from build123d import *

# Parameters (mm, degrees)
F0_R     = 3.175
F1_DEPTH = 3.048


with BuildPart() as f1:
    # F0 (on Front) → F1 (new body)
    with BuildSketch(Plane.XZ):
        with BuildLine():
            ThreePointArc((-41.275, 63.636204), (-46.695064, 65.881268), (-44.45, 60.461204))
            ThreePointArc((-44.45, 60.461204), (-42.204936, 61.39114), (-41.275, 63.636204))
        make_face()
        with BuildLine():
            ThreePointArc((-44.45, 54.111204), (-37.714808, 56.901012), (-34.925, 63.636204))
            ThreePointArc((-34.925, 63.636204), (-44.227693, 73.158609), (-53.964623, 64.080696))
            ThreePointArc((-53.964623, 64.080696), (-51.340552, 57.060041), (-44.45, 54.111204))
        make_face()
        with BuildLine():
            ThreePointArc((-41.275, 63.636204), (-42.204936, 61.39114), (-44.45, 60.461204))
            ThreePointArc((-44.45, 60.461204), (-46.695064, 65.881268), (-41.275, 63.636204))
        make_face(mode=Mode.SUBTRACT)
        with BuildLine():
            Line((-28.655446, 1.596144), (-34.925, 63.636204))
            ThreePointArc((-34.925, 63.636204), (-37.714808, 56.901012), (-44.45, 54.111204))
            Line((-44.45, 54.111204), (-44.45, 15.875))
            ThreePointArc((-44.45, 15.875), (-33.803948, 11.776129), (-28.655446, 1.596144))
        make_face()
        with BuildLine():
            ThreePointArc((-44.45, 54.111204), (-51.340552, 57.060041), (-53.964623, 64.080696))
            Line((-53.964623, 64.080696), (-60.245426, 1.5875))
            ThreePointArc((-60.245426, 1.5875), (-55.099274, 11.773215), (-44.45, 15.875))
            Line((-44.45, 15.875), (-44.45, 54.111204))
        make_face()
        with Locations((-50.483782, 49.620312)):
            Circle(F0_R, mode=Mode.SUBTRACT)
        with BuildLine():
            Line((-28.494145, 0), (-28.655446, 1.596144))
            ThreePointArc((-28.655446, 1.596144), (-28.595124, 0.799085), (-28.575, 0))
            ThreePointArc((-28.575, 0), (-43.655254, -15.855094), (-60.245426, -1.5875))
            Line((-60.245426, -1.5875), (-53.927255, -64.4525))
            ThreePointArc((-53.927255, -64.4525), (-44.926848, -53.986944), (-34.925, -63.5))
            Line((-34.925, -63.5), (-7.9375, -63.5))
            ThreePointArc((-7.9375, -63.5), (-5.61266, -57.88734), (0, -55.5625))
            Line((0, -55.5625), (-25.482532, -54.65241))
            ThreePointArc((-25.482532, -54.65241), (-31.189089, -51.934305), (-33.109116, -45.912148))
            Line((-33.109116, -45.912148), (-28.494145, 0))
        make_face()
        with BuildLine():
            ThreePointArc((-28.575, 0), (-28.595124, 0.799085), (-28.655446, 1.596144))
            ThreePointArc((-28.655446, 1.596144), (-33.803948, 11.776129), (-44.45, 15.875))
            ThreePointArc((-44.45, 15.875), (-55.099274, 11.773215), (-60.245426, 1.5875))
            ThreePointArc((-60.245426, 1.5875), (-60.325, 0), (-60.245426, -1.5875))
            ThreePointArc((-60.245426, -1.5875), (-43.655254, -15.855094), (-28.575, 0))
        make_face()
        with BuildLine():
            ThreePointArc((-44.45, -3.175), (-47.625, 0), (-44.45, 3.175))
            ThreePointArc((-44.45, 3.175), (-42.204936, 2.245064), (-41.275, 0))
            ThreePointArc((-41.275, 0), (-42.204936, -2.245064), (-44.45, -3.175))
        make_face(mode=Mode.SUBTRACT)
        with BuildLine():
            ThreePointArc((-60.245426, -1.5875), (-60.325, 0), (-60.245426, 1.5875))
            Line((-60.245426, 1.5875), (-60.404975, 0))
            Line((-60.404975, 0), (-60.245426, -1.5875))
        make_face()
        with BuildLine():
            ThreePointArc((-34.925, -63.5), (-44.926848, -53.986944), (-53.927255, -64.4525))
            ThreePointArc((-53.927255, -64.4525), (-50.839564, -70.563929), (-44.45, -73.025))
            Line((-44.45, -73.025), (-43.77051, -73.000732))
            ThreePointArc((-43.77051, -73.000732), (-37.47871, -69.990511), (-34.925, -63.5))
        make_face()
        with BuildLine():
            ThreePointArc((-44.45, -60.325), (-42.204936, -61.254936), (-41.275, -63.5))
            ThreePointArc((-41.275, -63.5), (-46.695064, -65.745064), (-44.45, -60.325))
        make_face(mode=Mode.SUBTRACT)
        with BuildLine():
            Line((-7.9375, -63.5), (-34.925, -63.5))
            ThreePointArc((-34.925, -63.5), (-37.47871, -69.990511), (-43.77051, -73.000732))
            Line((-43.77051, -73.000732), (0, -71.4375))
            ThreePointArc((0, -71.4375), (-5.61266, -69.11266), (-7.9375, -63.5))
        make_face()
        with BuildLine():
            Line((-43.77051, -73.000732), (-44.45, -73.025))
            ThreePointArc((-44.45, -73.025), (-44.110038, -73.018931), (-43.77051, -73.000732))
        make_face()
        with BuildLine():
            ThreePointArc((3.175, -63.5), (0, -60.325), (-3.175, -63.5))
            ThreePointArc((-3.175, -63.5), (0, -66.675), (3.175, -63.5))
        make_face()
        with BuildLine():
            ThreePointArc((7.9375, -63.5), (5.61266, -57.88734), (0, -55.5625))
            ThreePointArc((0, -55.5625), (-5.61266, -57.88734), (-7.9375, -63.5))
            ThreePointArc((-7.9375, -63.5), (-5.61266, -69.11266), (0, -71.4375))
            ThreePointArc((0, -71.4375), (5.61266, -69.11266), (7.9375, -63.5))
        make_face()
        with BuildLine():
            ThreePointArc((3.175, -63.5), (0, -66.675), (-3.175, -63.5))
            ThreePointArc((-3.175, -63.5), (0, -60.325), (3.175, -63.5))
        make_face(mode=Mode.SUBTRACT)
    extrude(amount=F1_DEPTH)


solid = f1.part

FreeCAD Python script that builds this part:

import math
import FreeCAD as App
import Part
import Sketcher
Q = App.Units.Quantity

doc = App.newDocument("Part")
body = doc.addObject("PartDesign::Body", "Body")

sketch1 = body.newObject("Sketcher::SketchObject", "Sketch")
sketch1.AttachmentSupport = (doc.getObject("XZ_Plane"), [""])
sketch1.MapMode = "FlatFace"
sketch1.addGeometry([
    Part.LineSegment(App.Vector(-28.7, 1.6, 0), App.Vector(-34.9, 63.6, 0)),
    Part.ArcOfCircle(Part.Circle(App.Vector(-44.4, 63.6, 0), App.Vector(0, 0, 1), 9.5), math.radians(0), math.radians(177)),
    Part.LineSegment(App.Vector(-54, 64.1, 0), App.Vector(-60.2, 1.6, 0)),
    Part.LineSegment(App.Vector(-60.2, 1.6, 0), App.Vector(-60.4, 0, 0)),
    Part.LineSegment(App.Vector(-60.4, 0, 0), App.Vector(-60.2, -1.6, 0)),
    Part.LineSegment(App.Vector(-60.2, -1.6, 0), App.Vector(-53.9, -64.5, 0)),
    Part.ArcOfCircle(Part.Circle(App.Vector(-44.4, -63.5, 0), App.Vector(0, 0, 1), 9.5), math.radians(-174), math.radians(-90)),
    Part.ArcOfCircle(Part.Circle(App.Vector(-44.5, -63.5, 0), App.Vector(0, 0, 1), 9.5), math.radians(-90), math.radians(-85.91)),
    Part.LineSegment(App.Vector(-43.8, -73, 0), App.Vector(0, -71.4, 0)),
    Part.ArcOfCircle(Part.Circle(App.Vector(0, -63.5, 0), App.Vector(0, 0, 1), 7.9), math.radians(-90), math.radians(0)),
    Part.ArcOfCircle(Part.Circle(App.Vector(0, -63.5, 0), App.Vector(0, 0, 1), 7.9), math.radians(0), math.radians(90)),
    Part.LineSegment(App.Vector(0, -55.6, 0), App.Vector(-25.5, -54.7, 0)),
    Part.ArcOfCircle(Part.Circle(App.Vector(-25.2, -46.7, 0), App.Vector(0, 0, 1), 8), math.radians(174), math.radians(268)),
    Part.LineSegment(App.Vector(-33.1, -45.9, 0), App.Vector(-28.5, 0, 0)),
    Part.LineSegment(App.Vector(-28.5, 0, 0), App.Vector(-28.7, 1.6, 0)),
    Part.ArcOfCircle(Part.Circle(App.Vector(-44.4, -63.5, 0), App.Vector(0, 0, 1), 3.2), math.radians(90), math.radians(360)),
    Part.ArcOfCircle(Part.Circle(App.Vector(-44.5, -63.5, 0), App.Vector(0, 0, 1), 3.2), math.radians(0), math.radians(90)),
    Part.ArcOfCircle(Part.Circle(App.Vector(-44.5, 0, 0), App.Vector(0, 0, 1), 3.2), math.radians(-90), math.radians(0)),
    Part.ArcOfCircle(Part.Circle(App.Vector(-44.5, 0, 0), App.Vector(0, 0, 1), 3.2), math.radians(90), math.radians(270)),
    Part.ArcOfCircle(Part.Circle(App.Vector(-44.5, 0, 0), App.Vector(0, 0, 1), 3.2), math.radians(0), math.radians(90)),
    Part.Circle(App.Vector(0, -63.5, 0), App.Vector(0, 0, 1), 3.2),
    Part.Circle(App.Vector(-50.5, 49.6, 0), App.Vector(0, 0, 1), 3.2),
    Part.ArcOfCircle(Part.Circle(App.Vector(-44.4, 63.6, 0), App.Vector(0, 0, 1), 3.2), math.radians(0), math.radians(270)),
    Part.ArcOfCircle(Part.Circle(App.Vector(-44.5, 63.6, 0), App.Vector(0, 0, 1), 3.2), math.radians(-90), math.radians(0)),
], False)
sketch1.addConstraint([
    Sketcher.Constraint("Coincident", 0, 2, 1, 1),
    Sketcher.Constraint("Coincident", 1, 2, 2, 1),
    Sketcher.Constraint("Coincident", 2, 2, 3, 1),
    Sketcher.Constraint("Coincident", 3, 2, 4, 1),
    Sketcher.Constraint("Coincident", 4, 2, 5, 1),
    Sketcher.Constraint("Tangent", 5, 2, 6, 1),
    Sketcher.Constraint("Tangent", 6, 2, 7, 1),
    Sketcher.Constraint("Coincident", 7, 2, 8, 1),
    Sketcher.Constraint("Coincident", 8, 2, 9, 1),
    Sketcher.Constraint("Tangent", 9, 2, 10, 1),
    Sketcher.Constraint("Coincident", 10, 2, 11, 1),
    Sketcher.Constraint("Tangent", 11, 2, 12, 2),
    Sketcher.Constraint("Tangent", 12, 1, 13, 1),
    Sketcher.Constraint("Coincident", 13, 2, 14, 1),
    Sketcher.Constraint("Coincident", 14, 2, 0, 1),
    Sketcher.Constraint("Tangent", 15, 1, 16, 2),
    Sketcher.Constraint("Coincident", 16, 1, 15, 2),
    Sketcher.Constraint("Tangent", 17, 1, 18, 2),
    Sketcher.Constraint("Tangent", 18, 1, 19, 2),
    Sketcher.Constraint("Tangent", 19, 1, 17, 2),
    Sketcher.Constraint("Tangent", 22, 1, 23, 2),
    Sketcher.Constraint("Coincident", 23, 1, 22, 2),
    Sketcher.Constraint("Coincident", 15, 3, 6, 3),
    Sketcher.Constraint("Coincident", 20, 3, 9, 3),
    Sketcher.Constraint("Coincident", 22, 3, 1, 3),
    Sketcher.Constraint("Equal", 1, 6),
    Sketcher.Constraint("Equal", 9, 10),
    Sketcher.Constraint("Equal", 16, 17),
    Sketcher.Constraint("Equal", 19, 20),
    Sketcher.Constraint("Equal", 20, 21),
    Sketcher.Constraint("Equal", 21, 22),
    Sketcher.Constraint("Symmetric", 2, 2, 4, 2, -1),
    Sketcher.Constraint("Symmetric", 17, 1, 18, 1, -1),
    Sketcher.Constraint("PointOnObject", 9, 3, -2),
    Sketcher.Constraint("PointOnObject", 3, 2, -1),
    Sketcher.Constraint("PointOnObject", 8, 2, -2),
    Sketcher.Constraint("PointOnObject", 10, 2, -2),
    Sketcher.Constraint("PointOnObject", 13, 2, -1),
    Sketcher.Constraint("PointOnObject", 19, 1, -1),
    Sketcher.Constraint("Parallel", 2, 3),
    Sketcher.Constraint("Parallel", 4, 5),
    Sketcher.Constraint("Parallel", 0, 14),
    Sketcher.Constraint("Horizontal", 6, 3, 9, 3),
    Sketcher.Constraint("Horizontal", 23, 3, 0, 2),
    Sketcher.Constraint("Horizontal", 20, 3, 9, 2),
    Sketcher.Constraint("Horizontal", 9, 2, 16, 1),
    Sketcher.Constraint("Horizontal", 0, 2, 22, 1),
    Sketcher.Constraint("Vertical", 1, 3, 6, 3),
    Sketcher.Constraint("Vertical", 16, 3, 17, 3),
    Sketcher.Constraint("Vertical", 23, 3, 6, 2),
    Sketcher.Constraint("Vertical", 6, 2, 15, 1),
    Sketcher.Constraint("Vertical", 15, 1, 17, 1),
    Sketcher.Constraint("Vertical", 18, 1, 23, 1),
    Sketcher.Constraint("Diameter", 20, Q("0.25 in")),
    Sketcher.Constraint("Radius", 1, Q("0.375 in")),
    Sketcher.Constraint("Radius", 9, Q("0.3125 in")),
    Sketcher.Constraint("Radius", 12, Q("0.3130001 in")),
    Sketcher.Constraint("DistanceY", 6, 3, -1, 1, Q("2.5 in")),
    Sketcher.Constraint("DistanceX", 1, 3, -1, 1, Q("1.75 in")),
    Sketcher.Constraint("DistanceY", -1, 1, 2, 2, Q("0.0625 in")),
    Sketcher.Constraint("Radius", 7, Q("9.524881 mm")),
    Sketcher.Constraint("DistanceY", 5, 2, -1, 1, Q("2.5375 in")),
    Sketcher.Constraint("DistanceX", 2, 2, 14, 2, Q("1.2437 in")),
    Sketcher.Constraint("DistanceX", 14, 2, 13, 2, Q("0.161301 mm")),
    Sketcher.Constraint("Distance", 11, Q("25.498778 mm")),
    Sketcher.Constraint("DistanceX", 21, 3, -1, 1, Q("50.483782 mm")),
    Sketcher.Constraint("DistanceY", -1, 1, 21, 3, Q("49.620312 mm")),
    Sketcher.Constraint("DistanceX", 7, 2, -1, 1, Q("43.77051 mm")),
    Sketcher.Constraint("DistanceX", 11, 2, -1, 1, Q("25.482532 mm")),
    Sketcher.Constraint("DistanceY", 21, 3, 1, 3, Q("14.015892 mm")),
])
pad1 = body.newObject("PartDesign::Pad", "Pad")
pad1.Profile = sketch1
pad1.Length = Q("0.12 in")

doc.recompute()
